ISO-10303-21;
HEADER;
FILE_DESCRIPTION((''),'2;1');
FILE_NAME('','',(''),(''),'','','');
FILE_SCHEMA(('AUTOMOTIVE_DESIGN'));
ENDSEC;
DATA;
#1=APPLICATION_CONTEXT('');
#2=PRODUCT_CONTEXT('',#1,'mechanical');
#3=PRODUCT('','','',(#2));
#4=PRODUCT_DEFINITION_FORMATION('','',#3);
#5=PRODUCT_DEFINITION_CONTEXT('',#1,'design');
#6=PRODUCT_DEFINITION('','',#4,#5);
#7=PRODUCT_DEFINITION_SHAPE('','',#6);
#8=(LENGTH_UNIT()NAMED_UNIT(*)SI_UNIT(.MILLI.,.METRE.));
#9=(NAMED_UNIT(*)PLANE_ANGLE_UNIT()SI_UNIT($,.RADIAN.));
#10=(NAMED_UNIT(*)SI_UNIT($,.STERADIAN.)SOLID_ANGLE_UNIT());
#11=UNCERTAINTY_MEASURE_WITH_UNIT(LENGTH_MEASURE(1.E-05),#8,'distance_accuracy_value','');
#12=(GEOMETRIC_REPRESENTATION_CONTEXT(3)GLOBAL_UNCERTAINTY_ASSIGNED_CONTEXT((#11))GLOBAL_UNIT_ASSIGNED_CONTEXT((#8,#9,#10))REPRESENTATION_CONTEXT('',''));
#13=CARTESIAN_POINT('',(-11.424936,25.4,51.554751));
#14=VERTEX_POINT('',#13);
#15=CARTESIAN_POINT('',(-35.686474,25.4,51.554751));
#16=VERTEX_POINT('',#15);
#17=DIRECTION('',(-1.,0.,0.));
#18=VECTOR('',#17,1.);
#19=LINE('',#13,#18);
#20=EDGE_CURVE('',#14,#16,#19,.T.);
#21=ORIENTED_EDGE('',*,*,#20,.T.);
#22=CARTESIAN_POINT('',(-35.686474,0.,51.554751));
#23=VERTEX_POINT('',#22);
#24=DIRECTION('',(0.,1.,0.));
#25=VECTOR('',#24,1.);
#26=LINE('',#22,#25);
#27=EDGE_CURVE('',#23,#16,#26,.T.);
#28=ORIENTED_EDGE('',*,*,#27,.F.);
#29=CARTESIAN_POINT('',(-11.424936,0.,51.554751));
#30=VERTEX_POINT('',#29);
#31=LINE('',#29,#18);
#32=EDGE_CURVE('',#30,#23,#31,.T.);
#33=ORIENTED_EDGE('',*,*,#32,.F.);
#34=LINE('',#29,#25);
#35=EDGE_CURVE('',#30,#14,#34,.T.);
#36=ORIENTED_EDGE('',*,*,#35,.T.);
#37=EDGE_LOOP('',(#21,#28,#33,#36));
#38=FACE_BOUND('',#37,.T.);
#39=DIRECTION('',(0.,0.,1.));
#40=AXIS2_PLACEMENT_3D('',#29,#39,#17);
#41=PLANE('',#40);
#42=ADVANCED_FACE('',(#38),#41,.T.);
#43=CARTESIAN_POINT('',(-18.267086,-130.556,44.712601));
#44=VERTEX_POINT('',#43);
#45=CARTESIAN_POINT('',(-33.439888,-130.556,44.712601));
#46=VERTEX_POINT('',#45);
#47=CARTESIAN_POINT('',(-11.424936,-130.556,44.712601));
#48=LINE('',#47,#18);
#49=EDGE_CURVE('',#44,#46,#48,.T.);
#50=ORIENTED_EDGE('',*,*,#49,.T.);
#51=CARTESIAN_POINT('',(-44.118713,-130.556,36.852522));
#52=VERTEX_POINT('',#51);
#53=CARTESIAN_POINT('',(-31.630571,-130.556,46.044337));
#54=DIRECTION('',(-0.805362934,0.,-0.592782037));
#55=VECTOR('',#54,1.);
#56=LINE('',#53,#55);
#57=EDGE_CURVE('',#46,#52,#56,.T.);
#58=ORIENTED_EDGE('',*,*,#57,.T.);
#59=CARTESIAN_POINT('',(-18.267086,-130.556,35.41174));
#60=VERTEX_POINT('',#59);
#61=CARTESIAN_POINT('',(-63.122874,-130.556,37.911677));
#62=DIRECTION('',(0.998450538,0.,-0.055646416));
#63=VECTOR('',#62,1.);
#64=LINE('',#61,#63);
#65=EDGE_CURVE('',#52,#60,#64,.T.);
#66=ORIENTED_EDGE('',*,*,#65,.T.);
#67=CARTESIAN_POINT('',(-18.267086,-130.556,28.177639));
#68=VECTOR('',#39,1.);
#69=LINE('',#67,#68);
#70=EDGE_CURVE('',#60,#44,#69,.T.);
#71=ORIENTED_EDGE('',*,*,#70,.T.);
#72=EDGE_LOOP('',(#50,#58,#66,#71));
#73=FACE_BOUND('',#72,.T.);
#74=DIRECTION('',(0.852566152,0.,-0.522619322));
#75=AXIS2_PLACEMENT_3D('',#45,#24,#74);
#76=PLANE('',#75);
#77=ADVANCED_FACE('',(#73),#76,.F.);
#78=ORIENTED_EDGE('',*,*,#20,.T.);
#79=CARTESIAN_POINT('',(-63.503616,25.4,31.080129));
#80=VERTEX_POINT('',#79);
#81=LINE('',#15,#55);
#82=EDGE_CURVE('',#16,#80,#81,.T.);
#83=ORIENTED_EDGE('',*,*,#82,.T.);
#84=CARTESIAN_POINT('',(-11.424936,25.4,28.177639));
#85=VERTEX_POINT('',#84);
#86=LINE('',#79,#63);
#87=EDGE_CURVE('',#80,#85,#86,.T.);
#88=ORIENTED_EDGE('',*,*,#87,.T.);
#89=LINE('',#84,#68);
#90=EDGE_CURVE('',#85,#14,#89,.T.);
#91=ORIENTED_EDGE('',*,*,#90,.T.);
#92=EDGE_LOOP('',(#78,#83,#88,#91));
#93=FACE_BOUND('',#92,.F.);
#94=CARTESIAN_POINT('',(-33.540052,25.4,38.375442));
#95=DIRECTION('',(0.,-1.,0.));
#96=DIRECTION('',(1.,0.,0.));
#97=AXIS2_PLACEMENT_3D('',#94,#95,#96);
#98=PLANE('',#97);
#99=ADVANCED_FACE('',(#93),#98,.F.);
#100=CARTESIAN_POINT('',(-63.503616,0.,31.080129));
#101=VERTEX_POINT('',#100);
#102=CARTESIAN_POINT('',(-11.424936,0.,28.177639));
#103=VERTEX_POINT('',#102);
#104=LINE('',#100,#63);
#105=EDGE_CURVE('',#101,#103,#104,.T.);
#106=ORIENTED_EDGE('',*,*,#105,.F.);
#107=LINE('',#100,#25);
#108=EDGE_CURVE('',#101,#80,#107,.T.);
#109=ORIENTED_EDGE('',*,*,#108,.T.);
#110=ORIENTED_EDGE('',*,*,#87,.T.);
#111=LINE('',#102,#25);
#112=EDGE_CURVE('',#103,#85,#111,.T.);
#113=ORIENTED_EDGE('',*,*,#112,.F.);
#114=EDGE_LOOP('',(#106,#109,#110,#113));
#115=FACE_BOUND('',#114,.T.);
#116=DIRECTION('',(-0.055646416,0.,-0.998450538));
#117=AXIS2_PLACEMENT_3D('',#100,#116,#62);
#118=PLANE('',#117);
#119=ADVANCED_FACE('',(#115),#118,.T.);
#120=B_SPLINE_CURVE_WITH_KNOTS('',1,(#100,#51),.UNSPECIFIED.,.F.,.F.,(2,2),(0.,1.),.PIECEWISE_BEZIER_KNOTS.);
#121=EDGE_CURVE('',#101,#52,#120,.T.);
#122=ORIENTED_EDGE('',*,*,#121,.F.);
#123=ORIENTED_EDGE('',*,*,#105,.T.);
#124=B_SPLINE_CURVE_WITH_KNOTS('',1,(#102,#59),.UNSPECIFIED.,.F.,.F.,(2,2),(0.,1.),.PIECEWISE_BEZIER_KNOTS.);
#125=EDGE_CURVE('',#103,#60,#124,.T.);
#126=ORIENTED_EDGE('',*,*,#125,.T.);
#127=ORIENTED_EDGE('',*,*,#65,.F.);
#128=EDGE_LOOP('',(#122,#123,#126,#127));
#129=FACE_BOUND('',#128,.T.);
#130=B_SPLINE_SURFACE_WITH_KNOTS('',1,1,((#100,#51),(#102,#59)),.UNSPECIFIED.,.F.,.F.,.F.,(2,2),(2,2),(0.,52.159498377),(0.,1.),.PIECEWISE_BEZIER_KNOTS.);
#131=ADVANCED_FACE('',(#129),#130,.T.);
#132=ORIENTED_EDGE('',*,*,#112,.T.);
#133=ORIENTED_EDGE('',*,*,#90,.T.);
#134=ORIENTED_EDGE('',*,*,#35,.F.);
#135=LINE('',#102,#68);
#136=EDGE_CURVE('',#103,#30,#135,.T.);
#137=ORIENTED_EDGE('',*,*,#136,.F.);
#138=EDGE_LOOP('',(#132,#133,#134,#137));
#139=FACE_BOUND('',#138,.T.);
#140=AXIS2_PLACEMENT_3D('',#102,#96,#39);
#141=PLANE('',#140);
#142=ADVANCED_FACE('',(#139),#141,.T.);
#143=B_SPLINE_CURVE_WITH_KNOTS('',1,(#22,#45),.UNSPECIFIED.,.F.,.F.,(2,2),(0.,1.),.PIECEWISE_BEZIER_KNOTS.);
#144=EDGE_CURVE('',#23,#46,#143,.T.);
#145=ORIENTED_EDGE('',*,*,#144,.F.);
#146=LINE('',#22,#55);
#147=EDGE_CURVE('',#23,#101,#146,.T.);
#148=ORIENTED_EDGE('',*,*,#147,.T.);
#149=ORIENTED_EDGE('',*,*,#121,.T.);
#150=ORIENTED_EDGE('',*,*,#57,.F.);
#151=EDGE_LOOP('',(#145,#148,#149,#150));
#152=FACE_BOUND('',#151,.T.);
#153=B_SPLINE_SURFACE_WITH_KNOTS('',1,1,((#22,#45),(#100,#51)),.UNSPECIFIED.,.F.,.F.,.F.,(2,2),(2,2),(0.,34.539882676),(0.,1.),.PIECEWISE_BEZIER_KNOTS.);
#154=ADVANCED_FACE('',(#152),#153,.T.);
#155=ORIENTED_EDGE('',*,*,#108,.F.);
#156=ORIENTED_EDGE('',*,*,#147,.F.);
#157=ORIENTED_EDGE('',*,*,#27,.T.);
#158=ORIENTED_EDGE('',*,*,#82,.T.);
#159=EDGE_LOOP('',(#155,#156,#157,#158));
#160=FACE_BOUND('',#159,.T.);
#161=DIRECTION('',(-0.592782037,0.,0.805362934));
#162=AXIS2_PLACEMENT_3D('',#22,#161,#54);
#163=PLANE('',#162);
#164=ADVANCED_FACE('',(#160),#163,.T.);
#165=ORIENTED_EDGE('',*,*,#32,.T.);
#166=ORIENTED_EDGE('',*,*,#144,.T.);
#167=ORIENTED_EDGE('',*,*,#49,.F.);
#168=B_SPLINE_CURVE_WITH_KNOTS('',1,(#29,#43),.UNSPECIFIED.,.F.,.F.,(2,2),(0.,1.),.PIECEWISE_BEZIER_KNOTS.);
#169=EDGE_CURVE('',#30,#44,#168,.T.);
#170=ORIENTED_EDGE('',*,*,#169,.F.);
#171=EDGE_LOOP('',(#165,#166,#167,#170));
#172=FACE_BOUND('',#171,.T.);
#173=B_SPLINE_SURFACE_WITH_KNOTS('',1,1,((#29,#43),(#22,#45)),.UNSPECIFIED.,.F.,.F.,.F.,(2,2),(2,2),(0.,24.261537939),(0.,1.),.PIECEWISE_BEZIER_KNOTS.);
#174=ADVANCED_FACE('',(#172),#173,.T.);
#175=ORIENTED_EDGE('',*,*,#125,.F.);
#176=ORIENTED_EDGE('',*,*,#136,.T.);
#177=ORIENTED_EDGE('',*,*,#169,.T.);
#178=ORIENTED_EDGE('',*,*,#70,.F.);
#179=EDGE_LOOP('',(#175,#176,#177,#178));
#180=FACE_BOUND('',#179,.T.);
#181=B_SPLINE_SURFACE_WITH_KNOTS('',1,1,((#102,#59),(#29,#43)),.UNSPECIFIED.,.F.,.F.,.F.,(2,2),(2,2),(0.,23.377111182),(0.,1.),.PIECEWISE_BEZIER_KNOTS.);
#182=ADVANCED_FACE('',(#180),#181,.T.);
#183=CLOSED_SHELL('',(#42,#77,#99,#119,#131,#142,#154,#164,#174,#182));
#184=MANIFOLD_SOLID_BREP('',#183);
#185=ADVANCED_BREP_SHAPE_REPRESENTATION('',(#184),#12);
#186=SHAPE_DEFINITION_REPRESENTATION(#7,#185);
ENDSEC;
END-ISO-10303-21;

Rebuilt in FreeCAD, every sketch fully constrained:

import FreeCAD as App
import Part
import Sketcher
from FreeCAD import Vector
Q = App.Units.Quantity

doc = App.newDocument("Part")
params = doc.addObject("Spreadsheet::Sheet", "Params")
for row, (alias, value) in enumerate([
    ("pad1_length", "5.14 in"),
    ("pad1_taper", "-3 deg"),
    ("pad2_length", "1 in"),
], start=1):
    params.set(f"A{row}", alias)
    params.set(f"B{row}", "=" + value)
    params.setAlias(f"B{row}", alias)

body = doc.addObject("PartDesign::Body", "Body")

# Sketch on XZ plane
sketch1 = body.newObject("Sketcher::SketchObject", "Sketch")
sketch1.AttachmentSupport = (doc.getObject("XZ_Plane"), [""])
sketch1.MapMode = "FlatFace"
sketch1.addGeometry([
    Part.LineSegment(Vector(-35.686474, 51.554751, 0), Vector(-63.503616, 31.080129, 0)),
    Part.LineSegment(Vector(-63.503616, 31.080129, 0), Vector(-11.424936, 28.177639, 0)),
    Part.LineSegment(Vector(-11.424936, 28.177639, 0), Vector(-11.424936, 51.554751, 0)),
    Part.LineSegment(Vector(-11.424936, 51.554751, 0), Vector(-35.686474, 51.554751, 0)),
], False)
sketch1.addConstraint([
    Sketcher.Constraint("Coincident", 0, 2, 1, 1),
    Sketcher.Constraint("Coincident", 1, 2, 2, 1),
    Sketcher.Constraint("Coincident", 2, 2, 3, 1),
    Sketcher.Constraint("Coincident", 3, 2, 0, 1),
    Sketcher.Constraint("Vertical", 2),
    Sketcher.Constraint("Horizontal", 3),
    Sketcher.Constraint("Distance", 1, Q("52.159498 mm")),
    Sketcher.Constraint("DistanceY", 2, 1, 2, 2, Q("23.377111 mm")),
    Sketcher.Constraint("DistanceX", 3, 2, 3, 1, Q("24.261538 mm")),
    Sketcher.Constraint("DistanceY", -1, 1, 0, 2, Q("31.080129 mm")),
    Sketcher.Constraint("DistanceY", -1, 1, 1, 2, Q("28.177639 mm")),
    Sketcher.Constraint("DistanceX", 0, 2, -1, 1, Q("63.503616 mm")),
])
pad1 = body.newObject("PartDesign::Pad", "Pad")
pad1.Profile = sketch1
pad1.setExpression("Length", "Params.pad1_length")
pad1.setExpression("TaperAngle", "Params.pad1_taper")
pad2 = body.newObject("PartDesign::Pad", "Pad001")
pad2.Profile = sketch1
pad2.setExpression("Length", "Params.pad2_length")
pad2.Reversed = True

doc.recompute()
